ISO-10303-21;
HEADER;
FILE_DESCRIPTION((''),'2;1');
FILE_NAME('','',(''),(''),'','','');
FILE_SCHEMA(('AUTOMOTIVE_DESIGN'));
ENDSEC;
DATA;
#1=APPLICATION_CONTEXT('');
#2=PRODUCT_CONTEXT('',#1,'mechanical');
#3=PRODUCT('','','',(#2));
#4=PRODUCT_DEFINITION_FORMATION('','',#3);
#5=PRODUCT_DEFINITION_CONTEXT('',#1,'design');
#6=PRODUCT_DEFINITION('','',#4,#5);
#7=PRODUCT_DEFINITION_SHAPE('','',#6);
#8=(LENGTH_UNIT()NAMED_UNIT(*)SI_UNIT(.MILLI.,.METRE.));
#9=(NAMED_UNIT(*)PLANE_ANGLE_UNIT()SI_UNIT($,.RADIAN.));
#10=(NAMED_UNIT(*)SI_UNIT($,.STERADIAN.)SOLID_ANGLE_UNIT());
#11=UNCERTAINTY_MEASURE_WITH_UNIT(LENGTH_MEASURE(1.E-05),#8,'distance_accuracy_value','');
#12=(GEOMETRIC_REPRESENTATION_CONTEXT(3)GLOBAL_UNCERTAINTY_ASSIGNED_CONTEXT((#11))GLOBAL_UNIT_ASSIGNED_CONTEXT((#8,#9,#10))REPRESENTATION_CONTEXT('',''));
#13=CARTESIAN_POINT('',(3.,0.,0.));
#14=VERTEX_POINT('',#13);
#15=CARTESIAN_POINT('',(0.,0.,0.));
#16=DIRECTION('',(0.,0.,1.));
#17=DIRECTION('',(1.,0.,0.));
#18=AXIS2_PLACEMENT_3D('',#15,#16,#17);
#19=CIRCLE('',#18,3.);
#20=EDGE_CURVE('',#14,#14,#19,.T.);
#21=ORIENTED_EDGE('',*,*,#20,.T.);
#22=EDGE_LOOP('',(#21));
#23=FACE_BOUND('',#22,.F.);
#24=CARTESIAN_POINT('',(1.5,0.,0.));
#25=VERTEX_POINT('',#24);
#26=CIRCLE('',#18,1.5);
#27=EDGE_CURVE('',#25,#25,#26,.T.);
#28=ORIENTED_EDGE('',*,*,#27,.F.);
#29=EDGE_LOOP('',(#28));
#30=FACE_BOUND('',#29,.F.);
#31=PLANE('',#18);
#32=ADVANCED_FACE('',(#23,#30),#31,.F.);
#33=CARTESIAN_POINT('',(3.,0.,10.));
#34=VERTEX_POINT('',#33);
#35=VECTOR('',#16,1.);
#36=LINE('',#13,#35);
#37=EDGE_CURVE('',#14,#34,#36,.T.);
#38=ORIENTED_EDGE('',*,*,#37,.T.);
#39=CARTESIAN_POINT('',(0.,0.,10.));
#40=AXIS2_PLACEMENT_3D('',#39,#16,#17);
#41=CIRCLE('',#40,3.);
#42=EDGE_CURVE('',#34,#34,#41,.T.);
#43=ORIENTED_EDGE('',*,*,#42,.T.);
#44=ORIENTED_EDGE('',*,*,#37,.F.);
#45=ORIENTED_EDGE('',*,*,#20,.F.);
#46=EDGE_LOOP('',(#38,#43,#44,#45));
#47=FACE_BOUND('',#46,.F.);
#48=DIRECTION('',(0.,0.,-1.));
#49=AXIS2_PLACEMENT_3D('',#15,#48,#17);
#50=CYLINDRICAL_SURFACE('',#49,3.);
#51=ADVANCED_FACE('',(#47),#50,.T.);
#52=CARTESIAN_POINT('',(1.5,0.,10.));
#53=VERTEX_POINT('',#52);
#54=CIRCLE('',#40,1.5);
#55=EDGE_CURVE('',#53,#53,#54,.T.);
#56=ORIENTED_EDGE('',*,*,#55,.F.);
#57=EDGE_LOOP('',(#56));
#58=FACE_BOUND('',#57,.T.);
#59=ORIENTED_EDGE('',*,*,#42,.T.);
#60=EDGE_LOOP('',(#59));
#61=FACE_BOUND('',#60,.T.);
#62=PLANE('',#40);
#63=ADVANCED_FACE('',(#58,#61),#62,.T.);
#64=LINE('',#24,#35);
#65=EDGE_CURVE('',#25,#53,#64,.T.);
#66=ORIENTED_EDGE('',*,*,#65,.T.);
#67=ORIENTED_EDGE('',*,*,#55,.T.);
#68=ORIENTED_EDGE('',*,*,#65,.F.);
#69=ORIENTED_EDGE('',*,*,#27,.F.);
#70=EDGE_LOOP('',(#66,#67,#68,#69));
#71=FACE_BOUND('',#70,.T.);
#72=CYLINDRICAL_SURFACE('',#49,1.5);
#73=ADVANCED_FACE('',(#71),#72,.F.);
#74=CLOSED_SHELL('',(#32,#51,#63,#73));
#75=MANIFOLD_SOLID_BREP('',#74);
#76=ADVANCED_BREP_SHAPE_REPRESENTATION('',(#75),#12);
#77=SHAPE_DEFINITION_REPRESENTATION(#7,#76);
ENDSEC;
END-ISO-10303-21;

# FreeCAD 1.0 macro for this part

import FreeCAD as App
import Part
import Sketcher

V = App.Vector
Q = App.Units.Quantity

doc = App.newDocument("Part")
body = doc.addObject("PartDesign::Body", "Body")

sketch1 = body.newObject("Sketcher::SketchObject", "Sketch")
sketch1.AttachmentSupport = (doc.getObject("XY_Plane"), [""])
sketch1.MapMode = "FlatFace"
sketch1.addGeometry([
    Part.Circle(V(0, 0, 0), V(0, 0, 1), 3),
    Part.Circle(V(0, 0, 0), V(0, 0, 1), 1.5),
], False)
sketch1.addConstraint([
    Sketcher.Constraint("Coincident", 0, 3, -1, 1),
    Sketcher.Constraint("Coincident", 1, 3, -1, 1),
    Sketcher.Constraint("Diameter", 0, Q("6 mm")),
    Sketcher.Constraint("Diameter", 1, Q("3 mm")),
])
pad1 = body.newObject("PartDesign::Pad", "Pad")
pad1.Profile = sketch1
pad1.Length = 10

doc.recompute()
